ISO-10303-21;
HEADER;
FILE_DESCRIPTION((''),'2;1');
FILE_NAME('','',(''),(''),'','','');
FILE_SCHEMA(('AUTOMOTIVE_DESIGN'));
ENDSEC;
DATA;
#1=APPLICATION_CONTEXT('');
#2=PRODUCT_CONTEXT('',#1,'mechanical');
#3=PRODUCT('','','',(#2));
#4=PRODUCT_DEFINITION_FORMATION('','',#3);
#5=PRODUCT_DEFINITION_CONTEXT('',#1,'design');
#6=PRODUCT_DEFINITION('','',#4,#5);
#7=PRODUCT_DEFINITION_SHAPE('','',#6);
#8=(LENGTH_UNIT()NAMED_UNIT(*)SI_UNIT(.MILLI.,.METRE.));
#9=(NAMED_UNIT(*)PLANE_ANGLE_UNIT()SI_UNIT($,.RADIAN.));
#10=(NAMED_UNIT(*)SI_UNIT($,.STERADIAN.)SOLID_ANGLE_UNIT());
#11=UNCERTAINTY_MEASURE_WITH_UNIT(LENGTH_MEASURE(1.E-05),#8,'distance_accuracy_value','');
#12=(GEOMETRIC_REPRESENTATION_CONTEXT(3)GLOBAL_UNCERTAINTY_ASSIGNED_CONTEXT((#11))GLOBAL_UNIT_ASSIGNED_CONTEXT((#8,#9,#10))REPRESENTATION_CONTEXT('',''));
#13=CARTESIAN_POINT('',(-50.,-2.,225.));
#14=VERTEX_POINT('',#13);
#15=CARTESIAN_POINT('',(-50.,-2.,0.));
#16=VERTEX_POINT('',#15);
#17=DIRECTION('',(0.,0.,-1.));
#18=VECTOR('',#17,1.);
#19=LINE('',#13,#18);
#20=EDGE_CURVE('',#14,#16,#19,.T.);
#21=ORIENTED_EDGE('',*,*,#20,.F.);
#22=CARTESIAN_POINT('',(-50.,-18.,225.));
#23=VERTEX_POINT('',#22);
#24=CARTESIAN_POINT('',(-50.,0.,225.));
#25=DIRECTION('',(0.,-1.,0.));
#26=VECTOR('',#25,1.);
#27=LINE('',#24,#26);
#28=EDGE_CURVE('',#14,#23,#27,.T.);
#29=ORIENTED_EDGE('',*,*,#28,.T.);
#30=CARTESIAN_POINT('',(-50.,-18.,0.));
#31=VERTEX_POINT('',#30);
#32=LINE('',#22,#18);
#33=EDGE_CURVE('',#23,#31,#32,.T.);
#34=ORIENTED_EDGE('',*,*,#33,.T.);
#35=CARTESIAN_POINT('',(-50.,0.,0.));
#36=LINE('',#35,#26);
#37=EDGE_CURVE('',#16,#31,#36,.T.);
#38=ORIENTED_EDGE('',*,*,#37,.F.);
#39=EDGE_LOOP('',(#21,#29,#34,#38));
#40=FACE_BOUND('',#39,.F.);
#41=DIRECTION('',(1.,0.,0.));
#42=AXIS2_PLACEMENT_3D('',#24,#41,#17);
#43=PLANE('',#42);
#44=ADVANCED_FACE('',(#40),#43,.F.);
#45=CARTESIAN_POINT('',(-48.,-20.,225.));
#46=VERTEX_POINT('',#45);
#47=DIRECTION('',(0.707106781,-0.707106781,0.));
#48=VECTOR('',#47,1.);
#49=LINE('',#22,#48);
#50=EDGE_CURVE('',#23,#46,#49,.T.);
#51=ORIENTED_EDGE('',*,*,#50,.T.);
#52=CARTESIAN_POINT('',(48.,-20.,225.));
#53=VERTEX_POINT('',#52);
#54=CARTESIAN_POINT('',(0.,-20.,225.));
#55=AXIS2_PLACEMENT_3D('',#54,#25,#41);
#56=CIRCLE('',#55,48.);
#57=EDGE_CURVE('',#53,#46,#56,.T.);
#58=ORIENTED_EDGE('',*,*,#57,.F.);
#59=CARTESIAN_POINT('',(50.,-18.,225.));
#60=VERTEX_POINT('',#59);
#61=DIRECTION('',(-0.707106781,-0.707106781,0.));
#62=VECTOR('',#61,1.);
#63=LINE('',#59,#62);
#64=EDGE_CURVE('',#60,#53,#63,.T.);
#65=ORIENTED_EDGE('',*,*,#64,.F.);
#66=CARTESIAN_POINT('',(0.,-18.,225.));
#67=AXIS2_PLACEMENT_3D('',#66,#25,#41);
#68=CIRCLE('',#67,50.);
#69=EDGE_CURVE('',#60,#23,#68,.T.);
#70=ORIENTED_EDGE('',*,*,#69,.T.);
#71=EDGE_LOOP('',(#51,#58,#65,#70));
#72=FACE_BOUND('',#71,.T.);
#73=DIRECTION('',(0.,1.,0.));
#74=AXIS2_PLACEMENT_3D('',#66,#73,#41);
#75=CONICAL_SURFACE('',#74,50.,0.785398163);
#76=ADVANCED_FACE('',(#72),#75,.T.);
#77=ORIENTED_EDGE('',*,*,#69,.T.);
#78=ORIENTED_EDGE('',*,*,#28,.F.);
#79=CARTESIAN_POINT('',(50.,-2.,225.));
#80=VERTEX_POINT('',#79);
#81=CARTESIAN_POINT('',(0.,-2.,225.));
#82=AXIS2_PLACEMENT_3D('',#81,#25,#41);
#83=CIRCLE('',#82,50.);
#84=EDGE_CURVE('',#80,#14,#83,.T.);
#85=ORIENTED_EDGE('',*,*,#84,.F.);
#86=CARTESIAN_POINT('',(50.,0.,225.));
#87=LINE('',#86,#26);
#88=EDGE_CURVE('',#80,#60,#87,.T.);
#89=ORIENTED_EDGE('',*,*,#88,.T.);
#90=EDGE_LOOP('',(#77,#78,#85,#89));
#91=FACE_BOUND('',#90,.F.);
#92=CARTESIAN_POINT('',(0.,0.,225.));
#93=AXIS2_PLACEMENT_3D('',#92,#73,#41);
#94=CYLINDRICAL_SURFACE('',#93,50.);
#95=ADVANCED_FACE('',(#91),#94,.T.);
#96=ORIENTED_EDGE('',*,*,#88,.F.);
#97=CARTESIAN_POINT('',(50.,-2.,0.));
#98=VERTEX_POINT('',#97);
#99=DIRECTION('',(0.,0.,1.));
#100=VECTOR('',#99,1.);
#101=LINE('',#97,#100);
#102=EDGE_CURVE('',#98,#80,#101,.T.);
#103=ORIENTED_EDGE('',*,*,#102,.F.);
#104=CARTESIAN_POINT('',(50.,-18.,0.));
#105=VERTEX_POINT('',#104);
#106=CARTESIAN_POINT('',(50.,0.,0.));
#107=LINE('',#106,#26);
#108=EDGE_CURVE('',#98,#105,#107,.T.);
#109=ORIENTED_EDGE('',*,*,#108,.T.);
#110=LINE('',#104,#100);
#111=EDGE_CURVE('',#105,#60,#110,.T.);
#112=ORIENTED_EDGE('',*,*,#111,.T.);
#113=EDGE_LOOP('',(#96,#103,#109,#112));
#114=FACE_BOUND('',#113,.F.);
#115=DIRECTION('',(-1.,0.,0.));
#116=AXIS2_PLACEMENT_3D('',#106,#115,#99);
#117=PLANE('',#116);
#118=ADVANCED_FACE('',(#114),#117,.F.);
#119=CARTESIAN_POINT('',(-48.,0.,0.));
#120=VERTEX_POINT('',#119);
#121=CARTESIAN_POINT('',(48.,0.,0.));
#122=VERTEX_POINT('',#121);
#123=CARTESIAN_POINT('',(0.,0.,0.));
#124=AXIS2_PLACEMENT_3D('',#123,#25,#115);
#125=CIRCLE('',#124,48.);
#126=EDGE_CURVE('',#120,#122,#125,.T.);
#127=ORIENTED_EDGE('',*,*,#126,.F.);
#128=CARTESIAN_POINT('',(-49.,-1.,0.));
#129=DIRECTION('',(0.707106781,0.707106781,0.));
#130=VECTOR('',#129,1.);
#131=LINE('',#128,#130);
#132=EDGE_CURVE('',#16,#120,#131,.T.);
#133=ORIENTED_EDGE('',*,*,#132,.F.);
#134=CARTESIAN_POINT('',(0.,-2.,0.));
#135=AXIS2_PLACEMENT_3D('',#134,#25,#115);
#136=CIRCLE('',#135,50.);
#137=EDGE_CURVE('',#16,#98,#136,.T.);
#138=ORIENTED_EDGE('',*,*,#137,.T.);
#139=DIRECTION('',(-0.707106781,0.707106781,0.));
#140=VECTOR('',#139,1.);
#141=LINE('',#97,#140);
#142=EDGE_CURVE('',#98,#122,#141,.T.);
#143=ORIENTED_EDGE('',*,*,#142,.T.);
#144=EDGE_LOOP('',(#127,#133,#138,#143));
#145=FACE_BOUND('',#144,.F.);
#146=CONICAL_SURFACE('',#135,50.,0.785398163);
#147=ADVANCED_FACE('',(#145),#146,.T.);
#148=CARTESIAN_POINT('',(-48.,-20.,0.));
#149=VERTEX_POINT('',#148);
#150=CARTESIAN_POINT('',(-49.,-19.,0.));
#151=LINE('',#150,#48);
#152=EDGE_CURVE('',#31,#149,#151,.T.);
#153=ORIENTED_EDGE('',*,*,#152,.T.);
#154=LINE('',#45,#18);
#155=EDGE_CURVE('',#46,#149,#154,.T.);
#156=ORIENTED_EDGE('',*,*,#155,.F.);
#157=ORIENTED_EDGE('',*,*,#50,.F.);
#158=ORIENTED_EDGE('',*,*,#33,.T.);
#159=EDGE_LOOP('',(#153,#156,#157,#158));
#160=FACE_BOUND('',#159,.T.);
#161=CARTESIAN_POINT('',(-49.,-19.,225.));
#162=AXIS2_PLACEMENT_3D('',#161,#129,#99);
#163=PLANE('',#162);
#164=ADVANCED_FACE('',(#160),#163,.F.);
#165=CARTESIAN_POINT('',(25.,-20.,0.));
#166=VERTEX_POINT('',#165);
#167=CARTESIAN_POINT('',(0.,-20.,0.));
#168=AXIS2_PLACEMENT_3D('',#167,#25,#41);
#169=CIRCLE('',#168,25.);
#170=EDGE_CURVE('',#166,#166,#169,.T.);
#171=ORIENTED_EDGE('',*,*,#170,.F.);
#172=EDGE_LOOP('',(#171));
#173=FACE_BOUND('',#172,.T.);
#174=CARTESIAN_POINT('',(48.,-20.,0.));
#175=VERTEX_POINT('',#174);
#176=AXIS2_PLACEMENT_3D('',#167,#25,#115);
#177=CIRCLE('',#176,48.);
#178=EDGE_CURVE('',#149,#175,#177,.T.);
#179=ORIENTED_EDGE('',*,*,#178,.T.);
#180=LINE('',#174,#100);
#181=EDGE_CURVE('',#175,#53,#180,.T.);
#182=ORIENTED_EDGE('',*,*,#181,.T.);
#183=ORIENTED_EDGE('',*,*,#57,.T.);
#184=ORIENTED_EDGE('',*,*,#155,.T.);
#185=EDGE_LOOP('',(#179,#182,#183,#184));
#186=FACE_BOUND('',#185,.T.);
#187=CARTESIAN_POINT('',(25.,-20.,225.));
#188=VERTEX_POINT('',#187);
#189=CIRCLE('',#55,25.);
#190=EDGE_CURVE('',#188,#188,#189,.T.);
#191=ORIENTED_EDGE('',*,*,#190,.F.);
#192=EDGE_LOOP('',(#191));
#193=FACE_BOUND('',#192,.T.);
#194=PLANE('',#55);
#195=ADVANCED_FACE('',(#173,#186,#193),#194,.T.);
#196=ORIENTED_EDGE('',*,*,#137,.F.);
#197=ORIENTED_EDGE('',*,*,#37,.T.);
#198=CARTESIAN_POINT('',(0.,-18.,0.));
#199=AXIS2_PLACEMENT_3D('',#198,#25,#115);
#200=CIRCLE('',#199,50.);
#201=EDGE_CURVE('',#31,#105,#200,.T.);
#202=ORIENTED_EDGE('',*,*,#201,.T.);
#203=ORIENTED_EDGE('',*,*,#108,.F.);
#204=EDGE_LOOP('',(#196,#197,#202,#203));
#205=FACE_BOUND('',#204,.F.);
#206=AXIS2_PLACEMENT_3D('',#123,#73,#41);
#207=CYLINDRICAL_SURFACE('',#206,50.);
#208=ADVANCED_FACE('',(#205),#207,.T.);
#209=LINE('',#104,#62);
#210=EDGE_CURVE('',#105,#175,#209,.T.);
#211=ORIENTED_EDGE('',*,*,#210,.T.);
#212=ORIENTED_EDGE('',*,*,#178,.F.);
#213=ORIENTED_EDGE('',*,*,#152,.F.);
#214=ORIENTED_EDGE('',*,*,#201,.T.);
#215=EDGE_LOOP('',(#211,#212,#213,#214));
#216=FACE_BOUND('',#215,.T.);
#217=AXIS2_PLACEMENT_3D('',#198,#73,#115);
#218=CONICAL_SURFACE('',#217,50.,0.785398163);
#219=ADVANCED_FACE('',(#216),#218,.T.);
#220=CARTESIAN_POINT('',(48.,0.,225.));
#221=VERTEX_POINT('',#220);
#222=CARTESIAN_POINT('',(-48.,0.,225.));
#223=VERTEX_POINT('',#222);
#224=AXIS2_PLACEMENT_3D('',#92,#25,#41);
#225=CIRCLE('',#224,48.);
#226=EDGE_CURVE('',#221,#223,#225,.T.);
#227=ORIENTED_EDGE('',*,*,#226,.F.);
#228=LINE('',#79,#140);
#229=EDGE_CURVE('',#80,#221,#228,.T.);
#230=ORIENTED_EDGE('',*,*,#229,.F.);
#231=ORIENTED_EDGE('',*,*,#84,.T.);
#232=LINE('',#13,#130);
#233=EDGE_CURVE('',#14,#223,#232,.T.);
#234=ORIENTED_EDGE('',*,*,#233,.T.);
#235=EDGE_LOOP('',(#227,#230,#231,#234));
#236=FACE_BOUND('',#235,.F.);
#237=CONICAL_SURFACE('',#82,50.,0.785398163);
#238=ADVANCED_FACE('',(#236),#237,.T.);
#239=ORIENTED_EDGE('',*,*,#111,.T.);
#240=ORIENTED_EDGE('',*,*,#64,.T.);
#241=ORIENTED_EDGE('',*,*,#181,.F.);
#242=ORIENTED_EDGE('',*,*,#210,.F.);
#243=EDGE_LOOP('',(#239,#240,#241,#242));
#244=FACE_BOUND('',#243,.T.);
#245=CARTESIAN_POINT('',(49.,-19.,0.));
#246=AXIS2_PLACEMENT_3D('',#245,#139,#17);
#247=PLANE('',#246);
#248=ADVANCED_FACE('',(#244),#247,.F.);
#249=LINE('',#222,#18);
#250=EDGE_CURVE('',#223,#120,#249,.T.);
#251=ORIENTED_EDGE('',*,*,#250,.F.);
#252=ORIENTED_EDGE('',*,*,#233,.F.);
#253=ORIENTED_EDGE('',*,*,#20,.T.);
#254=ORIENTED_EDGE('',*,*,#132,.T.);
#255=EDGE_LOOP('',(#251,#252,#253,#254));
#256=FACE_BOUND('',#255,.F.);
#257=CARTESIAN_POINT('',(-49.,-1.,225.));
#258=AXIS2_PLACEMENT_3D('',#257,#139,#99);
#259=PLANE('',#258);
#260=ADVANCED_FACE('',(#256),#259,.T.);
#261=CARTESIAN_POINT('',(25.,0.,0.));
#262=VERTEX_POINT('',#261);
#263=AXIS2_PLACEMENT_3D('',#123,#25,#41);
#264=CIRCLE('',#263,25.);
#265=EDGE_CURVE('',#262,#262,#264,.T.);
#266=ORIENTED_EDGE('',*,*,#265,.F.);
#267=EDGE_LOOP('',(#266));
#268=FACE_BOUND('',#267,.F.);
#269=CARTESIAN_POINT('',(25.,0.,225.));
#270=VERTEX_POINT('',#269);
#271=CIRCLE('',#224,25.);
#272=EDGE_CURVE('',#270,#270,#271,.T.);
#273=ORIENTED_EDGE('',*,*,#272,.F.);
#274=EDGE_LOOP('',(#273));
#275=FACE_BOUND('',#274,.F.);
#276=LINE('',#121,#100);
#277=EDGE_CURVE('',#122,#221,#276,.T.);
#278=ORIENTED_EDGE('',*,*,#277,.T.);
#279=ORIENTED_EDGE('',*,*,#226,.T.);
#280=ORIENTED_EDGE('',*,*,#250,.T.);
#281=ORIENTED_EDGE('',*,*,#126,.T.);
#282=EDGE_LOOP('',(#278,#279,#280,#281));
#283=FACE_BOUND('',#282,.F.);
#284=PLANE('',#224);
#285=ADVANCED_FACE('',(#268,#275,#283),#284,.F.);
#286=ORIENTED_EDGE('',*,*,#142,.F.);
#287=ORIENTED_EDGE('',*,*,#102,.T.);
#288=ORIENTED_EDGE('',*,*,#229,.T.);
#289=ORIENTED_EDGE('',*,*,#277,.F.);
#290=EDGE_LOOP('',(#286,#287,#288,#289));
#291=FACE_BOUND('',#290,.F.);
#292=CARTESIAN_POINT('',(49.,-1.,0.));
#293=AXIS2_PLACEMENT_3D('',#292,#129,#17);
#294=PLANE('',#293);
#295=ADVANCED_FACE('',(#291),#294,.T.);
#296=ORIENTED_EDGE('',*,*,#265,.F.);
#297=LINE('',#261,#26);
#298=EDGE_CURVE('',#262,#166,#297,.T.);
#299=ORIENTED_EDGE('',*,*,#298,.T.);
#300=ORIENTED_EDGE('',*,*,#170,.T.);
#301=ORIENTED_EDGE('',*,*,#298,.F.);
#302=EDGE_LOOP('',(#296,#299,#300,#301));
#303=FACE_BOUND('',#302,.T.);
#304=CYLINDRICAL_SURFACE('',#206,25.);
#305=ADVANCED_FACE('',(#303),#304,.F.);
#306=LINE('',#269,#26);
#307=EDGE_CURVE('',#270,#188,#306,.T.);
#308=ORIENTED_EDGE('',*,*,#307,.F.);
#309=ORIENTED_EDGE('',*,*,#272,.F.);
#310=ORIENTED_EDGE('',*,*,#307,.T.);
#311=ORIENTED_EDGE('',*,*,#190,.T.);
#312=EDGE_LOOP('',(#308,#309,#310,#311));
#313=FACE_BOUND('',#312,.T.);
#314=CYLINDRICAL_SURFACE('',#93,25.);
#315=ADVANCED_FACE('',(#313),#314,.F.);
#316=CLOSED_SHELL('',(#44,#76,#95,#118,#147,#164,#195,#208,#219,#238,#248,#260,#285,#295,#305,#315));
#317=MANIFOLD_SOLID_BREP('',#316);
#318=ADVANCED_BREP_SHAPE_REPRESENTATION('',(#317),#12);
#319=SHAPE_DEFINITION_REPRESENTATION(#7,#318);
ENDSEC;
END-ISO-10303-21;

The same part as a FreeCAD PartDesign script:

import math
import FreeCAD as App
import Part
import Sketcher
from FreeCAD import Vector
Q = App.Units.Quantity


def edges_at(feature, points):
    """Names of the edges that pass closest to the given points."""
    edges = feature.Shape.Edges
    near = lambda p: min(range(len(edges)), key=lambda i: edges[i].distToShape(Part.Vertex(*p))[0])
    return sorted({f"Edge{near(p) + 1}" for p in points})

doc = App.newDocument("Part")
params = doc.addObject("Spreadsheet::Sheet", "Params")
for row, (alias, value) in enumerate([
    ("sketch1_diameter", "50 mm"),
    ("sketch1_radius", "50 mm"),
    ("sketch1_height", "225 mm"),
    ("pad1_length", "20 mm"),
    ("chamfer_size", "2 mm"),
    ("chamfer_size2", "2 mm"),
], start=1):
    params.set(f"A{row}", alias)
    params.set(f"B{row}", "=" + value)
    params.setAlias(f"B{row}", alias)

body = doc.addObject("PartDesign::Body", "Body")

sketch1 = body.newObject("Sketcher::SketchObject", "Sketch")
sketch1.AttachmentSupport = (doc.getObject("XZ_Plane"), [""])
sketch1.MapMode = "FlatFace"
sketch1.addGeometry([
    Part.ArcOfCircle(Part.Circle(Vector(0, 225, 0), Vector(0, 0, 1), 50), math.radians(0), math.radians(180)),
    Part.LineSegment(Vector(-50, 225, 0), Vector(-50, 0, 0)),
    Part.ArcOfCircle(Part.Circle(Vector(0, 0, 0), Vector(0, 0, 1), 50), math.radians(180), math.radians(360)),
    Part.LineSegment(Vector(50, 0, 0), Vector(50, 225, 0)),
    Part.Circle(Vector(0, 0, 0), Vector(0, 0, 1), 25),
    Part.Circle(Vector(0, 225, 0), Vector(0, 0, 1), 25),
], False)
sketch1.addConstraint([
    Sketcher.Constraint("Tangent", 0, 2, 1, 1),
    Sketcher.Constraint("Tangent", 1, 2, 2, 1),
    Sketcher.Constraint("Tangent", 2, 2, 3, 1),
    Sketcher.Constraint("Tangent", 3, 2, 0, 1),
    Sketcher.Constraint("Vertical", 1),
    Sketcher.Constraint("Vertical", 3),
    Sketcher.Constraint("Coincident", 2, 3, -1, 1),
    Sketcher.Constraint("Coincident", 4, 3, -1, 1),
    Sketcher.Constraint("Coincident", 5, 3, 0, 3),
    Sketcher.Constraint("Equal", 4, 5),
    Sketcher.Constraint("Diameter", 4, Q("50 mm")),
    Sketcher.Constraint("Radius", 0, Q("50 mm")),
    Sketcher.Constraint("DistanceY", 1, 2, 1, 1, Q("225 mm")),
])
sketch1.setExpression("Constraints[10]", "Params.sketch1_diameter")
sketch1.setExpression("Constraints[11]", "Params.sketch1_radius")
sketch1.setExpression("Constraints[12]", "Params.sketch1_height")
pad1 = body.newObject("PartDesign::Pad", "Pad")
pad1.Profile = sketch1
pad1.setExpression("Length", "Params.pad1_length")
doc.recompute()

chamfer = body.newObject("PartDesign::Chamfer", "Chamfer")
chamfer.Base = (pad1, edges_at(pad1, [(0, -20, 275), (0, 0, 275)]))
chamfer.ChamferType = "Two distances"
chamfer.setExpression("Size", "Params.chamfer_size")
chamfer.setExpression("Size2", "Params.chamfer_size2")

doc.recompute()
